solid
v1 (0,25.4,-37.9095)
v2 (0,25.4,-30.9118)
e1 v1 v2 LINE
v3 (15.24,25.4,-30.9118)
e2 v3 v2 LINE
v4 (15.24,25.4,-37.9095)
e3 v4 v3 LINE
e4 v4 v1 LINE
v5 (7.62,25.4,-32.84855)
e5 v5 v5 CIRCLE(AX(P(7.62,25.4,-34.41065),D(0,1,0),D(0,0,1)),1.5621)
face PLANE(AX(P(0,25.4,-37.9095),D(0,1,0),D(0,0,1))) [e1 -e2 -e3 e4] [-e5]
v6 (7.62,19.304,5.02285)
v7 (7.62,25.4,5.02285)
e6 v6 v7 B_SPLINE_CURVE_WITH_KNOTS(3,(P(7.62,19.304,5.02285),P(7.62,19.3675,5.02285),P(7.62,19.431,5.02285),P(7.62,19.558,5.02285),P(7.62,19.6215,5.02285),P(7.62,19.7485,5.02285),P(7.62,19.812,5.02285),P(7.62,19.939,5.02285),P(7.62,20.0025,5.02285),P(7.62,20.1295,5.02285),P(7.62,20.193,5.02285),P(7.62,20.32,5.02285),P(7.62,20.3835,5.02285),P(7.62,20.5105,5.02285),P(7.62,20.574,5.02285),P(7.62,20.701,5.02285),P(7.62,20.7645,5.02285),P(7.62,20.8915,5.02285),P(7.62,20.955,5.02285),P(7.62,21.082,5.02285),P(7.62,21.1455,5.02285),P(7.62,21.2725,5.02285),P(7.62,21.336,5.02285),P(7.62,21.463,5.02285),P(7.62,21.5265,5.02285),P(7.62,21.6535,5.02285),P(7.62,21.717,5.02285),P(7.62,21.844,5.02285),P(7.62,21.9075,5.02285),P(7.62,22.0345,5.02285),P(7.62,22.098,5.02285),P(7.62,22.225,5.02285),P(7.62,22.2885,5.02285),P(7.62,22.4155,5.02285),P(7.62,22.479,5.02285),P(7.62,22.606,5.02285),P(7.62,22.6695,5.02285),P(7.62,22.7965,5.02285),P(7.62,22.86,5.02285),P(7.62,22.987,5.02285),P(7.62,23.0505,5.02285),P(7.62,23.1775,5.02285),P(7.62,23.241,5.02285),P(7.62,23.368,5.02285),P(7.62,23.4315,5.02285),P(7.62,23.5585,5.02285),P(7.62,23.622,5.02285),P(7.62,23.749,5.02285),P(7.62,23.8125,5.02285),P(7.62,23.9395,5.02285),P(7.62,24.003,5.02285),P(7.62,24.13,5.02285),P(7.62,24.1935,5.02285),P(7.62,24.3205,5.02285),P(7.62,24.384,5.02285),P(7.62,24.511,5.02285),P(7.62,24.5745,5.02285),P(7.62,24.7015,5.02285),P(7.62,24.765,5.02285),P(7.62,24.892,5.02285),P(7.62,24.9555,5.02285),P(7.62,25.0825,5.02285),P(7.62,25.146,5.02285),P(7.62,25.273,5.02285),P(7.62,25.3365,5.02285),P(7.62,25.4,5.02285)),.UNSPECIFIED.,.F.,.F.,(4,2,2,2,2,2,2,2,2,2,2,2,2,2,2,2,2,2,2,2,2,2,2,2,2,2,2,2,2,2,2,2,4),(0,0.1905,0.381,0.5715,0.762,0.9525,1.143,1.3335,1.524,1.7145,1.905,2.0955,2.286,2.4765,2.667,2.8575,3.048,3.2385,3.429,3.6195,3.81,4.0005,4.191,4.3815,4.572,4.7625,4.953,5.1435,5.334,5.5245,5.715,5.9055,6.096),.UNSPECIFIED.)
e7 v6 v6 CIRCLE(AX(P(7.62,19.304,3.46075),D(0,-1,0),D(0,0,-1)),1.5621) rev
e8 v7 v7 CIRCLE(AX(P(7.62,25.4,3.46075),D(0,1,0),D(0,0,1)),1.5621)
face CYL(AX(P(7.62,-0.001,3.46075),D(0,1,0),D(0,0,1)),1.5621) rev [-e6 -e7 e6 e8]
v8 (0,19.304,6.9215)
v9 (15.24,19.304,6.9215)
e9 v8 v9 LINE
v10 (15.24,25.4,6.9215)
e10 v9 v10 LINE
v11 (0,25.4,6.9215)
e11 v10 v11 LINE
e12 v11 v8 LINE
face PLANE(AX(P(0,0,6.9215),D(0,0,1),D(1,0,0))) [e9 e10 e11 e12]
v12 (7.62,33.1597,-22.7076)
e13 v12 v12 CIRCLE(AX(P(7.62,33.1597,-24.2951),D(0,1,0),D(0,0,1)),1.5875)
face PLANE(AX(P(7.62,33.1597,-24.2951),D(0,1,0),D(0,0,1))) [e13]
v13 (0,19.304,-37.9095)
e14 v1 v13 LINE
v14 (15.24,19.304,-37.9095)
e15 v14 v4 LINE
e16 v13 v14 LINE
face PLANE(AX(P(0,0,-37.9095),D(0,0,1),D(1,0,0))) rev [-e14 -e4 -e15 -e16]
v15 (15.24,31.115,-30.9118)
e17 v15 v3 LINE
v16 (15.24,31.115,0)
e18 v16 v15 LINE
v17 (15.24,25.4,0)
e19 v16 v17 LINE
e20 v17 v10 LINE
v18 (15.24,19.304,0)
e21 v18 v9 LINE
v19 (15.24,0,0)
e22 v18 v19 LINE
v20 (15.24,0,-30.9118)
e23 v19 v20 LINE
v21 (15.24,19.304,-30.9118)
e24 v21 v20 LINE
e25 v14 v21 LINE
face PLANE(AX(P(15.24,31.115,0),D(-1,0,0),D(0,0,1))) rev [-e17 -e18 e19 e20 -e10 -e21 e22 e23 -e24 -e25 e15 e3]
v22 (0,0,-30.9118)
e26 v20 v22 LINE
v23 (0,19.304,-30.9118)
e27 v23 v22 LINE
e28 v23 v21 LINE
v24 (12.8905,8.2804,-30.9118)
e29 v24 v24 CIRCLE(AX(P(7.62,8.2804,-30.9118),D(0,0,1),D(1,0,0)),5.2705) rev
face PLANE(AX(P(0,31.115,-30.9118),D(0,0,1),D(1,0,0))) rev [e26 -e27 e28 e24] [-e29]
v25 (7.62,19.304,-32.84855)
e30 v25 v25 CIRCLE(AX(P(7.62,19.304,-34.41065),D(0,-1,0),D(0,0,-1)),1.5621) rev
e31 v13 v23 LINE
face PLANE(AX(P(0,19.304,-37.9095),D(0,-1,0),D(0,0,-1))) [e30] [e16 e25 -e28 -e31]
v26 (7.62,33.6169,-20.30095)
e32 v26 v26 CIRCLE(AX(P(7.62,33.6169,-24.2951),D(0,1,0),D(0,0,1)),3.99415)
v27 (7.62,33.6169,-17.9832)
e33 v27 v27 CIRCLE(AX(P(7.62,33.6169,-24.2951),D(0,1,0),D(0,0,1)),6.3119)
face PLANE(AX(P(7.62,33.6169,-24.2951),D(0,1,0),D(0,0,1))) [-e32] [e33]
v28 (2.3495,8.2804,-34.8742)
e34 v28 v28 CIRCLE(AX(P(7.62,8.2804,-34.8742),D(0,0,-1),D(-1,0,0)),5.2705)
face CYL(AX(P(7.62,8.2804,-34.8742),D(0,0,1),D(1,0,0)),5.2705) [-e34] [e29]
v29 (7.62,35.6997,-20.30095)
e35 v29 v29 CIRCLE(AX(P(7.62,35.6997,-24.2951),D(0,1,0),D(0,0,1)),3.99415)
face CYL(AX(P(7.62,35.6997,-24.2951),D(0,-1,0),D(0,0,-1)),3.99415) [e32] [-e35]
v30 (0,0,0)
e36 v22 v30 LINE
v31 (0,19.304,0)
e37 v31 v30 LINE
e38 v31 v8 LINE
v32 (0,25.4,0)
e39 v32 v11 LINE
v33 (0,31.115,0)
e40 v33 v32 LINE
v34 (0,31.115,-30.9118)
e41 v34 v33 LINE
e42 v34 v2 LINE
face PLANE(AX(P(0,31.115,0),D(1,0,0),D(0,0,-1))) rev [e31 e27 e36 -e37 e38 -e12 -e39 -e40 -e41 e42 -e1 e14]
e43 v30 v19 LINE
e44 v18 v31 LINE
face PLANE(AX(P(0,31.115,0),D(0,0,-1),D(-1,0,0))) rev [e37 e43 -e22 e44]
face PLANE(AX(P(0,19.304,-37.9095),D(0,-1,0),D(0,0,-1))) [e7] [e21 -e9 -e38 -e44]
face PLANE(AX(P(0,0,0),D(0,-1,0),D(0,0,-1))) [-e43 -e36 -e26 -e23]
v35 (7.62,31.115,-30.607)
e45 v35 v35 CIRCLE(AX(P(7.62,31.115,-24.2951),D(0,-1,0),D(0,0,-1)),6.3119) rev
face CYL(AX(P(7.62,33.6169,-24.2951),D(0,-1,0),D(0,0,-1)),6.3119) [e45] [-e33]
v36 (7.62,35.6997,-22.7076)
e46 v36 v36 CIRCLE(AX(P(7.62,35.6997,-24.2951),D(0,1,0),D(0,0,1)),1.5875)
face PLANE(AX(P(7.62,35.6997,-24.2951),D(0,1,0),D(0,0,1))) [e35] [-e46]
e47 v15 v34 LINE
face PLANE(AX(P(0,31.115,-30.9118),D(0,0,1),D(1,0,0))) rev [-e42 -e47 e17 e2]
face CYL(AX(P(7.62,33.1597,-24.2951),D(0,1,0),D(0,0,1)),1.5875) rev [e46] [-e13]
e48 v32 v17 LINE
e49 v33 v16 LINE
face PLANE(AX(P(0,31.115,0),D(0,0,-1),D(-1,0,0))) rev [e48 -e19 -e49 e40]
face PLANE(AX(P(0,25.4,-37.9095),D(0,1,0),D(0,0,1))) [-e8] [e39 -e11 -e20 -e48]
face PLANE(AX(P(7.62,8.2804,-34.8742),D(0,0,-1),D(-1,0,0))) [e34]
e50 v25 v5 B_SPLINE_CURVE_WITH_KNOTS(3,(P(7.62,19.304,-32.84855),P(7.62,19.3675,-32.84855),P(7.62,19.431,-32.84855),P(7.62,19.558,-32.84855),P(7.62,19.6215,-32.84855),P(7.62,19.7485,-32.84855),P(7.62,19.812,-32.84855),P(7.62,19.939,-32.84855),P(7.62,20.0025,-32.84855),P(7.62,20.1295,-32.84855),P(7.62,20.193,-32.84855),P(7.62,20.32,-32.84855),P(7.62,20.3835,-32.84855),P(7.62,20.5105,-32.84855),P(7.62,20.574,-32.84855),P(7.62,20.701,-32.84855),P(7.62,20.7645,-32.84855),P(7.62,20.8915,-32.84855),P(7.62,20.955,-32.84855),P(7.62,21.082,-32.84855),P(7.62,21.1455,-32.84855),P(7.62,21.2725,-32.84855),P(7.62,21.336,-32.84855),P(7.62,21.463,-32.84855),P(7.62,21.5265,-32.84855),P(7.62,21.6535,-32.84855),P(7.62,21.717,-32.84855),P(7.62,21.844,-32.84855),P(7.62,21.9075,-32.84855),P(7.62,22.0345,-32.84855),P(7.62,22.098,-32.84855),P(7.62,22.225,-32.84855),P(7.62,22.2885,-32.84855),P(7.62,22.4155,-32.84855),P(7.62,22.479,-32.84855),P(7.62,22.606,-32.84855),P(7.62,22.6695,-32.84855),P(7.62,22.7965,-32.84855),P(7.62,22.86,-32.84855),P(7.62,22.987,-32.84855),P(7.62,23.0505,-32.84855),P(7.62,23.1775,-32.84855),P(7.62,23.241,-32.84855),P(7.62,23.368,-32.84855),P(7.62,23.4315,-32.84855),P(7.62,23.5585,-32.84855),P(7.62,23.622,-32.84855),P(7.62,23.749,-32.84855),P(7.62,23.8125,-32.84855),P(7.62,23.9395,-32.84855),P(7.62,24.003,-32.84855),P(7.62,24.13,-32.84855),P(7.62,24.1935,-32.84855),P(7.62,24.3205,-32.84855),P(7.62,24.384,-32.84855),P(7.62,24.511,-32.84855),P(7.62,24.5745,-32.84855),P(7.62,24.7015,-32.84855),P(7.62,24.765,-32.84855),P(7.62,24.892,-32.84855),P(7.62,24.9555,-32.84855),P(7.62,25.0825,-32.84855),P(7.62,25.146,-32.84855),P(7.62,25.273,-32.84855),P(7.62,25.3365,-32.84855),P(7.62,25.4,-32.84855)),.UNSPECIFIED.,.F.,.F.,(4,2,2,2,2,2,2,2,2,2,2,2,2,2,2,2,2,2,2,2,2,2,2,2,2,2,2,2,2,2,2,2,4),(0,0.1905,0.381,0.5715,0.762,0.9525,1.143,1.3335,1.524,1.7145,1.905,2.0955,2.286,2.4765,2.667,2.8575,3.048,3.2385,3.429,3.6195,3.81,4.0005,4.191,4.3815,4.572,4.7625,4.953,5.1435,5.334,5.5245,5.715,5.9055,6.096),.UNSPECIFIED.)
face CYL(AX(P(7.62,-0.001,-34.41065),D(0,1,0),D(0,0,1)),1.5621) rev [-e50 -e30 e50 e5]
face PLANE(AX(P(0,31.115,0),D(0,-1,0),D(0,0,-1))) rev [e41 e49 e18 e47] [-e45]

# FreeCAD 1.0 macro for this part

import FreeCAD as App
import Part
import Sketcher
from FreeCAD import Vector
Q = App.Units.Quantity


def add_polygon(sketch, points):
    """Adds a closed chain of lines whose ends are joined by coincident constraints."""
    first, n = sketch.GeometryCount, len(points)
    for a, b in zip(points, points[1:] + points[:1]):
        sketch.addGeometry(Part.LineSegment(App.Vector(*a, 0), App.Vector(*b, 0)), False)
    for i in range(n):
        sketch.addConstraint(Sketcher.Constraint("Coincident", first + i, 2, first + (i + 1) % n, 1))

doc = App.newDocument("Part")
body = doc.addObject("PartDesign::Body", "Body")

# Sketch on XZ plane
sketch1 = body.newObject("Sketcher::SketchObject", "Sketch")
sketch1.AttachmentSupport = (doc.getObject("XZ_Plane"), [""])
sketch1.MapMode = "FlatFace"
add_polygon(sketch1, [(0, -31), (0, 0), (15, 0), (15, -31)])  # lines 0-3
sketch1.addConstraint(Sketcher.Constraint("Vertical", 0))
sketch1.addConstraint(Sketcher.Constraint("Horizontal", 1))
sketch1.addConstraint(Sketcher.Constraint("Vertical", 2))
sketch1.addConstraint(Sketcher.Constraint("Horizontal", 3))
sketch1.addConstraint(Sketcher.Constraint("Coincident", 0, 2, -1, 1))
sketch1.addConstraint(Sketcher.Constraint("DistanceX", 1, 1, 1, 2, Q("0.6 in")))
sketch1.addConstraint(Sketcher.Constraint("DistanceY", 0, 1, 0, 2, Q("1.217 in")))
pad1 = body.newObject("PartDesign::Pad", "Pad")
pad1.Profile = sketch1
pad1.Length = Q("1.225 in")
pad1.Reversed = True

# Sketch on XY plane
sketch2 = body.newObject("Sketcher::SketchObject", "Sketch001")
sketch2.AttachmentSupport = (doc.getObject("XY_Plane"), [""])
sketch2.MapMode = "FlatFace"
add_polygon(sketch2, [(0, 25), (0, 19), (15, 19), (15, 25)])  # lines 0-3
sketch2.addConstraint(Sketcher.Constraint("Vertical", 0))
sketch2.addConstraint(Sketcher.Constraint("Horizontal", 1))
sketch2.addConstraint(Sketcher.Constraint("Vertical", 2))
sketch2.addConstraint(Sketcher.Constraint("Horizontal", 3))
sketch2.addConstraint(Sketcher.Constraint("PointOnObject", 0, 2, -2))
sketch2.addConstraint(Sketcher.Constraint("DistanceX", 1, 1, 1, 2, Q("0.6 in")))
sketch2.addConstraint(Sketcher.Constraint("DistanceY", -1, 1, 2, 2, Q("1 in")))
sketch2.addConstraint(Sketcher.Constraint("DistanceY", 0, 2, 0, 1, Q("0.24 in")))
pad2 = body.newObject("PartDesign::Pad", "Pad001")
pad2.Profile = sketch2
pad2.Type = "TwoLengths"
pad2.Length = Q("0.2725 in")
pad2.Length2 = Q("1.4925 in")

# Sketch on XY plane
sketch3 = body.newObject("Sketcher::SketchObject", "Sketch002")
sketch3.AttachmentSupport = (doc.getObject("XY_Plane"), [""])
sketch3.MapMode = "FlatFace"
sketch3.AttachmentOffset = App.Placement(Vector(0, 0, -1.217 * 25.4), App.Rotation())
sketch3.addGeometry(Part.Circle(Vector(8, 8, 0), Vector(0, 0, 1), 5), False)
sketch3.addConstraint(Sketcher.Constraint("Diameter", 0, Q("0.415 in")))
sketch3.addConstraint(Sketcher.Constraint("DistanceX", -1, 1, 0, 3, Q("0.3 in")))
sketch3.addConstraint(Sketcher.Constraint("DistanceY", -1, 1, 0, 3, Q("0.326 in")))
pad3 = body.newObject("PartDesign::Pad", "Pad002")
pad3.Profile = sketch3
pad3.Length = Q("0.156 in")
pad3.Reversed = True

# Sketch on XZ plane
sketch4 = body.newObject("Sketcher::SketchObject", "Sketch003")
sketch4.AttachmentSupport = (doc.getObject("XZ_Plane"), [""])
sketch4.MapMode = "FlatFace"
sketch4.AttachmentOffset = App.Placement(Vector(0, 0, -1.225 * 25.4), App.Rotation())
sketch4.addGeometry(Part.Circle(Vector(8, -24, 0), Vector(0, 0, 1), 6), False)
sketch4.addConstraint(Sketcher.Constraint("Diameter", 0, Q("0.497 in")))
sketch4.addConstraint(Sketcher.Constraint("DistanceX", -1, 1, 0, 3, Q("0.3 in")))
sketch4.addConstraint(Sketcher.Constraint("DistanceY", 0, 3, -1, 1, Q("0.9565 in")))
pad4 = body.newObject("PartDesign::Pad", "Pad003")
pad4.Profile = sketch4
pad4.Length = Q("0.0985 in")
pad4.Reversed = True

# Sketch on XZ plane
sketch5 = body.newObject("Sketcher::SketchObject", "Sketch004")
sketch5.AttachmentSupport = (doc.getObject("XZ_Plane"), [""])
sketch5.MapMode = "FlatFace"
sketch5.AttachmentOffset = App.Placement(Vector(0, 0, -1 * 25.4), App.Rotation())
sketch5.addGeometry(Part.Circle(Vector(7.6, 3.5, 0), Vector(0, 0, 1), 1.6), False)
sketch5.addConstraint(Sketcher.Constraint("Diameter", 0, Q("0.123 in")))
sketch5.addConstraint(Sketcher.Constraint("DistanceX", -1, 1, 0, 3, Q("0.3 in")))
sketch5.addConstraint(Sketcher.Constraint("DistanceY", -1, 1, 0, 3, Q("3.46075 mm")))
pocket1 = body.newObject("PartDesign::Pocket", "Pocket")
pocket1.Profile = sketch5
pocket1.Type = "UpToFirst"
pocket1.Reversed = True

# Sketch on XZ plane
sketch6 = body.newObject("Sketcher::SketchObject", "Sketch005")
sketch6.AttachmentSupport = (doc.getObject("XZ_Plane"), [""])
sketch6.MapMode = "FlatFace"
sketch6.AttachmentOffset = App.Placement(Vector(0, 0, -1 * 25.4), App.Rotation())
sketch6.addGeometry(Part.Circle(Vector(7.6, -34.4, 0), Vector(0, 0, 1), 1.6), False)
sketch6.addConstraint(Sketcher.Constraint("Diameter", 0, Q("0.123 in")))
sketch6.addConstraint(Sketcher.Constraint("DistanceX", -1, 1, 0, 3, Q("0.3 in")))
sketch6.addConstraint(Sketcher.Constraint("DistanceY", 0, 3, -1, 1, Q("34.41065 mm")))
pocket2 = body.newObject("PartDesign::Pocket", "Pocket001")
pocket2.Profile = sketch6
pocket2.Type = "UpToFirst"
pocket2.Reversed = True

# Sketch on XZ plane
sketch7 = body.newObject("Sketcher::SketchObject", "Sketch006")
sketch7.AttachmentSupport = (doc.getObject("XZ_Plane"), [""])
sketch7.MapMode = "FlatFace"
sketch7.AttachmentOffset = App.Placement(Vector(0, 0, -1.3235 * 25.4), App.Rotation())
sketch7.addGeometry(Part.Circle(Vector(7.6, -24.3, 0), Vector(0, 0, 1), 4), False)
sketch7.addConstraint(Sketcher.Constraint("Diameter", 0, Q("0.3145 in")))
sketch7.addConstraint(Sketcher.Constraint("DistanceX", -1, 1, 0, 3, Q("0.3 in")))
sketch7.addConstraint(Sketcher.Constraint("DistanceY", 0, 3, -1, 1, Q("0.9565 in")))
pad5 = body.newObject("PartDesign::Pad", "Pad004")
pad5.Profile = sketch7
pad5.Length = Q("0.082 in")
pad5.Reversed = True

# Sketch on XZ plane
sketch8 = body.newObject("Sketcher::SketchObject", "Sketch007")
sketch8.AttachmentSupport = (doc.getObject("XZ_Plane"), [""])
sketch8.MapMode = "FlatFace"
sketch8.AttachmentOffset = App.Placement(Vector(0, 0, -1.4055 * 25.4), App.Rotation())
sketch8.addGeometry(Part.Circle(Vector(7.6, -24.3, 0), Vector(0, 0, 1), 1.6), False)
sketch8.addConstraint(Sketcher.Constraint("Diameter", 0, Q("0.125 in")))
sketch8.addConstraint(Sketcher.Constraint("DistanceX", -1, 1, 0, 3, Q("0.3 in")))
sketch8.addConstraint(Sketcher.Constraint("DistanceY", 0, 3, -1, 1, Q("0.9565 in")))
pocket3 = body.newObject("PartDesign::Pocket", "Pocket002")
pocket3.Profile = sketch8
pocket3.Length = Q("0.1 in")
pocket3.Reversed = True

doc.recompute()
